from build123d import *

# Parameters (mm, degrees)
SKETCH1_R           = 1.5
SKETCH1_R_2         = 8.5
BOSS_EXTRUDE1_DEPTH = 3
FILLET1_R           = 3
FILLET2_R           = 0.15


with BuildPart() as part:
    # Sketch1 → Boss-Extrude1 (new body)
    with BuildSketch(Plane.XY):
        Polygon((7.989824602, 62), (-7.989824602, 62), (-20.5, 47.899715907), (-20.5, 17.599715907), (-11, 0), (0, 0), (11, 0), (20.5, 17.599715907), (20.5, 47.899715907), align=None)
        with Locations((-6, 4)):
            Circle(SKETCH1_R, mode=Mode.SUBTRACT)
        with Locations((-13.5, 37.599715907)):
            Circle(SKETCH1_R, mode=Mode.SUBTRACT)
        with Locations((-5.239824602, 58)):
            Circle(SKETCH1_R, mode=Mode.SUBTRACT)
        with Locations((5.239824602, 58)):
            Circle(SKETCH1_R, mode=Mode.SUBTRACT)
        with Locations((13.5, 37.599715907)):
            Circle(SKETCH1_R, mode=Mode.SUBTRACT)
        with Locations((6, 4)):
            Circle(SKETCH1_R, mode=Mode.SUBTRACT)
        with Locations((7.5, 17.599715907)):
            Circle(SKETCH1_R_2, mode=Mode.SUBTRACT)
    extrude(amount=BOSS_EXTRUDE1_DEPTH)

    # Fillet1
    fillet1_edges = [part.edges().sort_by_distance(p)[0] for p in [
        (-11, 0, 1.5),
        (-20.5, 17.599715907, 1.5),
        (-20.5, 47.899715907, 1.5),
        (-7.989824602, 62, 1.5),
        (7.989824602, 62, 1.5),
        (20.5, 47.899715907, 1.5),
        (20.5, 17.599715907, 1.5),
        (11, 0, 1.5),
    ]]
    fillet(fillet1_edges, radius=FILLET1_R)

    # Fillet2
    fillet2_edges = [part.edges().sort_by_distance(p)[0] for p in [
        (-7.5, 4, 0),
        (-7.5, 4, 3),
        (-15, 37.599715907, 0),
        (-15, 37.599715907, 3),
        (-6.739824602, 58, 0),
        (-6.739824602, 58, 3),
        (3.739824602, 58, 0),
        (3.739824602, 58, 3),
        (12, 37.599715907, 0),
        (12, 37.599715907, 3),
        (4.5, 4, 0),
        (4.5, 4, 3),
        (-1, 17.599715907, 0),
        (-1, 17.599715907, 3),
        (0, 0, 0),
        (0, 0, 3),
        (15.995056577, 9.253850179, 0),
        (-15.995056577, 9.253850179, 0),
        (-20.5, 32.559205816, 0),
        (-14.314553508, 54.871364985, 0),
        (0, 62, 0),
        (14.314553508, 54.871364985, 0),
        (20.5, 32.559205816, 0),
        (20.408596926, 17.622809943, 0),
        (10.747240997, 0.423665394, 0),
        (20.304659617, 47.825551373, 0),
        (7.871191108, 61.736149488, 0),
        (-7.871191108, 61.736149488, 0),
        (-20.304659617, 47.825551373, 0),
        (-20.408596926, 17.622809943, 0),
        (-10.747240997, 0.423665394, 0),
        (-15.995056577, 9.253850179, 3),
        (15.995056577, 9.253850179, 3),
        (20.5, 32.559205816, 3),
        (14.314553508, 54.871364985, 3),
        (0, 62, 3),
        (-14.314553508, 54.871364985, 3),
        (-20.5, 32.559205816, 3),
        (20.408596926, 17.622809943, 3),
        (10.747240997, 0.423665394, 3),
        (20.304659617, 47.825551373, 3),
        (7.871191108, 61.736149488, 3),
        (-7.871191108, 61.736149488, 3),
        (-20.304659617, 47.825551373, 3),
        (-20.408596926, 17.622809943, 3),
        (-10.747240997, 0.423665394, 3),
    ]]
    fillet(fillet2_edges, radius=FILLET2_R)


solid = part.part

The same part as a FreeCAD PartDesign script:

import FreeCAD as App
import Part
import Sketcher
from FreeCAD import Vector


def edges_at(feature, points):
    """Names of the edges that pass closest to the given points."""
    edges = feature.Shape.Edges
    near = lambda p: min(range(len(edges)), key=lambda i: edges[i].distToShape(Part.Vertex(*p))[0])
    return sorted({f"Edge{near(p) + 1}" for p in points})

doc = App.newDocument("Part")
body = doc.addObject("PartDesign::Body", "Body")

# Sketch on XY plane
sketch1 = body.newObject("Sketcher::SketchObject", "Sketch")
sketch1.AttachmentSupport = (doc.getObject("XY_Plane"), [""])
sketch1.MapMode = "FlatFace"
sketch1.addGeometry(Part.LineSegment(Vector(7.989825, 62, 0), Vector(-7.989825, 62, 0)), False)
sketch1.addGeometry(Part.LineSegment(Vector(-7.989825, 62, 0), Vector(-20.5, 47.899716, 0)), False)
sketch1.addGeometry(Part.LineSegment(Vector(-20.5, 47.899716, 0), Vector(-20.5, 17.599716, 0)), False)
sketch1.addGeometry(Part.LineSegment(Vector(-20.5, 17.599716, 0), Vector(-11, 0, 0)), False)
sketch1.addGeometry(Part.LineSegment(Vector(-11, 0, 0), Vector(11, 0, 0)), False)
sketch1.addGeometry(Part.LineSegment(Vector(11, 0, 0), Vector(20.5, 17.599716, 0)), False)
sketch1.addGeometry(Part.LineSegment(Vector(20.5, 17.599716, 0), Vector(20.5, 47.899716, 0)), False)
sketch1.addGeometry(Part.LineSegment(Vector(20.5, 47.899716, 0), Vector(7.989825, 62, 0)), False)
sketch1.addGeometry(Part.Circle(Vector(-6, 4, 0), Vector(0, 0, 1), 1.5), False)
sketch1.addGeometry(Part.Circle(Vector(6, 4, 0), Vector(0, 0, 1), 1.5), False)
sketch1.addGeometry(Part.Circle(Vector(7.5, 17.599716, 0), Vector(0, 0, 1), 8.5), False)
sketch1.addGeometry(Part.Circle(Vector(-13.5, 37.599716, 0), Vector(0, 0, 1), 1.5), False)
sketch1.addGeometry(Part.Circle(Vector(-5.239825, 58, 0), Vector(0, 0, 1), 1.5), False)
sketch1.addGeometry(Part.Circle(Vector(13.5, 37.599716, 0), Vector(0, 0, 1), 1.5), False)
sketch1.addGeometry(Part.Circle(Vector(5.239825, 58, 0), Vector(0, 0, 1), 1.5), False)
sketch1.addConstraint(Sketcher.Constraint("Coincident", 0, 2, 1, 1))
sketch1.addConstraint(Sketcher.Constraint("Coincident", 1, 2, 2, 1))
sketch1.addConstraint(Sketcher.Constraint("Coincident", 2, 2, 3, 1))
sketch1.addConstraint(Sketcher.Constraint("Coincident", 3, 2, 4, 1))
sketch1.addConstraint(Sketcher.Constraint("Coincident", 4, 2, 5, 1))
sketch1.addConstraint(Sketcher.Constraint("Coincident", 5, 2, 6, 1))
sketch1.addConstraint(Sketcher.Constraint("Coincident", 6, 2, 7, 1))
sketch1.addConstraint(Sketcher.Constraint("Coincident", 7, 2, 0, 1))
sketch1.addConstraint(Sketcher.Constraint("Horizontal", 0))
sketch1.addConstraint(Sketcher.Constraint("Vertical", 2))
sketch1.addConstraint(Sketcher.Constraint("Horizontal", 4))
sketch1.addConstraint(Sketcher.Constraint("Vertical", 6))
sketch1.addConstraint(Sketcher.Constraint("Equal", 8, 9))
sketch1.addConstraint(Sketcher.Constraint("Equal", 9, 11))
sketch1.addConstraint(Sketcher.Constraint("Equal", 11, 12))
sketch1.addConstraint(Sketcher.Constraint("Equal", 12, 13))
sketch1.addConstraint(Sketcher.Constraint("Equal", 13, 14))
sketch1.addConstraint(Sketcher.Constraint("Symmetric", 3, 2, 4, 2, -1, 1))
sketch1.addConstraint(Sketcher.Constraint("Symmetric", 8, 3, 9, 3, -2))
sketch1.addConstraint(Sketcher.Constraint("Symmetric", 11, 3, 13, 3, -2))
sketch1.addConstraint(Sketcher.Constraint("Symmetric", 12, 3, 14, 3, -2))
sketch1.addConstraint(Sketcher.Constraint("Symmetric", 2, 2, 5, 2, -2))
sketch1.addConstraint(Sketcher.Constraint("Horizontal", 10, 3, 2, 2))
sketch1.addConstraint(Sketcher.Constraint("Horizontal", 1, 2, 6, 2))
sketch1.addConstraint(Sketcher.Constraint("Equal", 1, 7))
sketch1.addConstraint(Sketcher.Constraint("Diameter", 8, 3.0))
sketch1.addConstraint(Sketcher.Constraint("Diameter", 10, 17.0))
sketch1.addConstraint(Sketcher.Constraint("DistanceX", 4, 1, 4, 2, 22.0))
sketch1.addConstraint(Sketcher.Constraint("Distance", 3, 20.0))
sketch1.addConstraint(Sketcher.Constraint("DistanceY", 2, 2, 2, 1, 30.3))
sketch1.addConstraint(Sketcher.Constraint("DistanceX", 8, 3, -1, 1, 6.0))
sketch1.addConstraint(Sketcher.Constraint("DistanceY", -1, 1, 8, 3, 4.0))
sketch1.addConstraint(Sketcher.Constraint("DistanceY", -1, 1, 12, 3, 58.0))
sketch1.addConstraint(Sketcher.Constraint("DistanceY", -1, 1, 0, 2, 62.0))
sketch1.addConstraint(Sketcher.Constraint("DistanceX", 11, 3, 10, 3, 21.0))
sketch1.addConstraint(Sketcher.Constraint("DistanceY", 10, 3, 11, 3, 20.0))
sketch1.addConstraint(Sketcher.Constraint("DistanceX", 10, 3, 13, 3, 6.0))
sketch1.addConstraint(Sketcher.Constraint("DistanceX", 1, 2, 11, 3, 7.0))
sketch1.addConstraint(Sketcher.Constraint("Distance", 1, 18.85))
sketch1.addConstraint(Sketcher.Constraint("DistanceX", 0, 2, 12, 3, 2.75))
pad1 = body.newObject("PartDesign::Pad", "Pad")
pad1.Profile = sketch1
pad1.Length = 3
doc.recompute()

fillet = body.newObject("PartDesign::Fillet", "Fillet")
fillet.Base = (pad1, edges_at(pad1, [
    (-11, 0, 1.5),
    (-20.5, 17.6, 1.5),
    (-20.5, 47.9, 1.5),
    (-7.99, 62, 1.5),
    (7.99, 62, 1.5),
    (20.5, 47.9, 1.5),
    (20.5, 17.6, 1.5),
    (11, 0, 1.5),
]))
fillet.Radius = 3
doc.recompute()

fillet2 = body.newObject("PartDesign::Fillet", "Fillet001")
fillet2.Base = (fillet, edges_at(fillet, [
    (-7.5, 4, 0),
    (-7.5, 4, 3),
    (-15, 37.6, 0),
    (-15, 37.6, 3),
    (-6.74, 58, 0),
    (-6.74, 58, 3),
    (3.74, 58, 0),
    (3.74, 58, 3),
    (12, 37.6, 0),
    (12, 37.6, 3),
    (4.5, 4, 0),
    (4.5, 4, 3),
    (-1, 17.6, 0),
    (-1, 17.6, 3),
    (0, 0, 0),
    (0, 0, 3),
    (15.995, 9.254, 0),
    (-15.995, 9.254, 0),
    (-20.5, 32.559, 0),
    (-14.315, 54.871, 0),
    (0, 62, 0),
    (14.315, 54.871, 0),
    (20.5, 32.559, 0),
    (20.409, 17.623, 0),
    (10.747, 0.424, 0),
    (20.305, 47.826, 0),
    (7.871, 61.736, 0),
    (-7.871, 61.736, 0),
    (-20.305, 47.826, 0),
    (-20.409, 17.623, 0),
    (-10.747, 0.424, 0),
    (-15.995, 9.254, 3),
    (15.995, 9.254, 3),
    (20.5, 32.559, 3),
    (14.315, 54.871, 3),
    (0, 62, 3),
    (-14.315, 54.871, 3),
    (-20.5, 32.559, 3),
    (20.409, 17.623, 3),
    (10.747, 0.424, 3),
    (20.305, 47.826, 3),
    (7.871, 61.736, 3),
    (-7.871, 61.736, 3),
    (-20.305, 47.826, 3),
    (-20.409, 17.623, 3),
    (-10.747, 0.424, 3),
]))
fillet2.Radius = 0.15

doc.recompute()
